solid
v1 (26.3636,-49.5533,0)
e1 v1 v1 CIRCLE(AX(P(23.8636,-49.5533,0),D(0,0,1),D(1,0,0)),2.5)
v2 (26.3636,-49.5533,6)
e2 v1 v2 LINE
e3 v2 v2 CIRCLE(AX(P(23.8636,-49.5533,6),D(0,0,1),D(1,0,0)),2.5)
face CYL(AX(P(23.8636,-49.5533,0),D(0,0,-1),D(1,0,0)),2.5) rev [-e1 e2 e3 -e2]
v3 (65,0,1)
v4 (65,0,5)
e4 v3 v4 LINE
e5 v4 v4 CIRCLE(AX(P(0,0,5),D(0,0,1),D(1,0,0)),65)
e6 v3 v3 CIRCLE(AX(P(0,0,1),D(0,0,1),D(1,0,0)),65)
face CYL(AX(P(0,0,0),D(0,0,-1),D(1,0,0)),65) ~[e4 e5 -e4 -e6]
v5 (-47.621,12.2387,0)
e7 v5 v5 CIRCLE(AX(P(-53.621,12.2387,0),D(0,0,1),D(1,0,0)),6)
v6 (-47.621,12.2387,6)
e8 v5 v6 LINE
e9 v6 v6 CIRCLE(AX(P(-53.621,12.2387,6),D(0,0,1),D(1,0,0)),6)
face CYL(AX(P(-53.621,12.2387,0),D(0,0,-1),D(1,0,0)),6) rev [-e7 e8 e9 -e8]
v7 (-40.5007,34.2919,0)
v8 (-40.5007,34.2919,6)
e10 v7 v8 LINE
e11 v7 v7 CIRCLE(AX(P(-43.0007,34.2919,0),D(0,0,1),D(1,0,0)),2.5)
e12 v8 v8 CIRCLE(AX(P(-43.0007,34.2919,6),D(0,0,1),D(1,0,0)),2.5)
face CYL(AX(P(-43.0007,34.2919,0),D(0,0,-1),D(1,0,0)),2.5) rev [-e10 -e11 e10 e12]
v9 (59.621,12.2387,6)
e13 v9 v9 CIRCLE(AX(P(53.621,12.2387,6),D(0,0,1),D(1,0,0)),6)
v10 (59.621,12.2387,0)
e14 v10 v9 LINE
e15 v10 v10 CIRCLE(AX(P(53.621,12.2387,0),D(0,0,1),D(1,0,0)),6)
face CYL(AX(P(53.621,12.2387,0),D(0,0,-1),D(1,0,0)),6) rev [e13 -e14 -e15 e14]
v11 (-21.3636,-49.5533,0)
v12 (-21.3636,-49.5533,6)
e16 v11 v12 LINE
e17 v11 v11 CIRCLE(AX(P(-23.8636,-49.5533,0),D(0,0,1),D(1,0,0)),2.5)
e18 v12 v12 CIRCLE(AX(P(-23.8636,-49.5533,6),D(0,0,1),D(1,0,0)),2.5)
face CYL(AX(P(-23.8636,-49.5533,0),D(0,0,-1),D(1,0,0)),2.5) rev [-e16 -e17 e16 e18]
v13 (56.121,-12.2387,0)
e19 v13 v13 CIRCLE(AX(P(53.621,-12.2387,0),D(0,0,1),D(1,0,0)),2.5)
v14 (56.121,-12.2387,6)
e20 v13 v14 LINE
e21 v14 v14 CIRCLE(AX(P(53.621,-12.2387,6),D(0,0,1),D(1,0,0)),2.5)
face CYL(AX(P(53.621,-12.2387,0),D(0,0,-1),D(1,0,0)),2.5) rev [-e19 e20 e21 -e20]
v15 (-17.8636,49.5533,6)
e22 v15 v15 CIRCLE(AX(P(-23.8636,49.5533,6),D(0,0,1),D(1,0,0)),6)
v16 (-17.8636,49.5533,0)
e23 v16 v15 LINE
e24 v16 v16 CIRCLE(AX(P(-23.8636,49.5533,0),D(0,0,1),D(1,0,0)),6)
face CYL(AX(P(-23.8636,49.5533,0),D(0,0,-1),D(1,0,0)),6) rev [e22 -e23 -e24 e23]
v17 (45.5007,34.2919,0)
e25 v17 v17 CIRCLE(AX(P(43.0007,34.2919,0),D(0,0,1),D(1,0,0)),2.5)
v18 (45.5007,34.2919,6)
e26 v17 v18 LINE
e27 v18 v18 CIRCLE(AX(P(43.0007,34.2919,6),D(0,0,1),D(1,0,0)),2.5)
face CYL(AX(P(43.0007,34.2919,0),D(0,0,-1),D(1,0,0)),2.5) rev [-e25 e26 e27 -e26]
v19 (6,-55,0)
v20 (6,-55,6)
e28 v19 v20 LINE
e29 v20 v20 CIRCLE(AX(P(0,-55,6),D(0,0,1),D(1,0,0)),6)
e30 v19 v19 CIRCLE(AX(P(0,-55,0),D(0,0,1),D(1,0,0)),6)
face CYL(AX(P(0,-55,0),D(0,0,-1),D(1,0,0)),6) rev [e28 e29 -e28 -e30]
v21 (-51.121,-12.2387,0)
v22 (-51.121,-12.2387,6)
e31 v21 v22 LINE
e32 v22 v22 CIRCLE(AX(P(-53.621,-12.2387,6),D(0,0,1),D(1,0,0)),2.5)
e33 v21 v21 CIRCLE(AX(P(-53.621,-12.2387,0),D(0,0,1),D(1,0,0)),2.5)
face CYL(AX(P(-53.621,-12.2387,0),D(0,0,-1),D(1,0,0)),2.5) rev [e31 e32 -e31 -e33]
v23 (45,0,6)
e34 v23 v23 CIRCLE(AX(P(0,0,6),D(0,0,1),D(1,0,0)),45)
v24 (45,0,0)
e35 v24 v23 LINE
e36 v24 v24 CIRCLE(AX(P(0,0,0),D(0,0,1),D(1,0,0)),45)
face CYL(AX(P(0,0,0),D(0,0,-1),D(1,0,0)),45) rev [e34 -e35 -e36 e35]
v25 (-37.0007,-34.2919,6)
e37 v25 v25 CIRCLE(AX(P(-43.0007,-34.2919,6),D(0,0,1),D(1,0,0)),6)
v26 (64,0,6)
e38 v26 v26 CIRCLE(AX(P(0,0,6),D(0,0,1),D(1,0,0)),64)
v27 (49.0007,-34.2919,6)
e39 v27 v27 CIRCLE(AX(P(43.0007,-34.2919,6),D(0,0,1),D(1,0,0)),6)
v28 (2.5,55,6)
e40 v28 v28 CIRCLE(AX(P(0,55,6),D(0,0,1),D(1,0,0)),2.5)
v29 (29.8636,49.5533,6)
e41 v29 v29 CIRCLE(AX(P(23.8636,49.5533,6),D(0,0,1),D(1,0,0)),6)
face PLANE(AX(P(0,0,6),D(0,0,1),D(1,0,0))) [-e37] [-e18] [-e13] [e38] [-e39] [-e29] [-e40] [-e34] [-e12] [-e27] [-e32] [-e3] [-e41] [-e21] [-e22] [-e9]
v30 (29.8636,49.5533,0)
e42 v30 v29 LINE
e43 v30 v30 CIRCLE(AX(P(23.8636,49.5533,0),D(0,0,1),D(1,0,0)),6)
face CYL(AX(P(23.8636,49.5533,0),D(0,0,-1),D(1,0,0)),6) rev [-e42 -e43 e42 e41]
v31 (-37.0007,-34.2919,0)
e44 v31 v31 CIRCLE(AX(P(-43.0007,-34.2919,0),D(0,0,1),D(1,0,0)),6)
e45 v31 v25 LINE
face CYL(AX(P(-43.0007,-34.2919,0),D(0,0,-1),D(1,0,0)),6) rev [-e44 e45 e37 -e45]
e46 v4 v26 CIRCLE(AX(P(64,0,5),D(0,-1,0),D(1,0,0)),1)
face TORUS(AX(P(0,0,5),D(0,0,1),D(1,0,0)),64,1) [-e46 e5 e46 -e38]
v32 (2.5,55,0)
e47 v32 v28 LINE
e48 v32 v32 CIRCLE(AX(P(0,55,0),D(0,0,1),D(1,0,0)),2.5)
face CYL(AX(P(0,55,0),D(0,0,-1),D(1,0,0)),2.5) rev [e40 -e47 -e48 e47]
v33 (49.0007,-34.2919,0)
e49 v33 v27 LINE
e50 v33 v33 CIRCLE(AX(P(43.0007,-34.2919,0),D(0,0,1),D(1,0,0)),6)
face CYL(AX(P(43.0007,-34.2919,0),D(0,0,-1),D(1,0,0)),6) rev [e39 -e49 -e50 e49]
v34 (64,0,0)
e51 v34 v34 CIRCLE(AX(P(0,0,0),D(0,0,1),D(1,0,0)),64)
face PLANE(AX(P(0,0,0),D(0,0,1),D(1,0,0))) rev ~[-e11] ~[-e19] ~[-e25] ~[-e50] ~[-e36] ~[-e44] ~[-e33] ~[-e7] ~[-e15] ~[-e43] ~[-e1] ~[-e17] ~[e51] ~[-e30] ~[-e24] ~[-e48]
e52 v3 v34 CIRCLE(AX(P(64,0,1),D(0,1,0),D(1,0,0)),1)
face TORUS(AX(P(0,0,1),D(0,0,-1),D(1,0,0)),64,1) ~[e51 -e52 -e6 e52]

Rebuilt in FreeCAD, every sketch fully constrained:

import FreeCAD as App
import Part
import Sketcher
Q = App.Units.Quantity


def edges_at(feature, points):
    """Names of the edges that pass closest to the given points."""
    edges = feature.Shape.Edges
    near = lambda p: min(range(len(edges)), key=lambda i: edges[i].distToShape(Part.Vertex(*p))[0])
    return sorted({f"Edge{near(p) + 1}" for p in points})

doc = App.newDocument("Part")
body = doc.addObject("PartDesign::Body", "Body")

# Sketch on XY plane
sketch1 = body.newObject("Sketcher::SketchObject", "Sketch")
sketch1.AttachmentSupport = (doc.getObject("XY_Plane"), [""])
sketch1.MapMode = "FlatFace"
sketch1.addGeometry([
    Part.Circle(App.Vector(0, 0, 0), App.Vector(0, 0, 1), 65),  # 0
    Part.Circle(App.Vector(-43, -34.3, 0), App.Vector(0, 0, 1), 6),  # 1
    Part.Circle(App.Vector(-23.9, -49.6, 0), App.Vector(0, 0, 1), 2.5),  # 2
    Part.Circle(App.Vector(-53.6, -12.2, 0), App.Vector(0, 0, 1), 2.5),  # 3
    Part.Circle(App.Vector(0, -55, 0), App.Vector(0, 0, 1), 6),  # 4
    Part.Circle(App.Vector(23.9, -49.6, 0), App.Vector(0, 0, 1), 2.5),  # 5
    Part.Circle(App.Vector(43, -34.3, 0), App.Vector(0, 0, 1), 6),  # 6
    Part.Circle(App.Vector(53.6, -12.2, 0), App.Vector(0, 0, 1), 2.5),  # 7
    Part.Circle(App.Vector(-53.6, 12.2, 0), App.Vector(0, 0, 1), 6),  # 8
    Part.Circle(App.Vector(-43, 34.3, 0), App.Vector(0, 0, 1), 2.5),  # 9
    Part.Circle(App.Vector(-23.9, 49.6, 0), App.Vector(0, 0, 1), 6),  # 10
    Part.Circle(App.Vector(0, 0, 0), App.Vector(0, 0, 1), 45),  # 11
    Part.Circle(App.Vector(53.6, 12.2, 0), App.Vector(0, 0, 1), 6),  # 12
    Part.Circle(App.Vector(0, 55, 0), App.Vector(0, 0, 1), 2.5),  # 13
    Part.Circle(App.Vector(23.9, 49.6, 0), App.Vector(0, 0, 1), 6),  # 14
    Part.Circle(App.Vector(43, 34.3, 0), App.Vector(0, 0, 1), 2.5),  # 15
], False)
sketch1.addConstraint([
    Sketcher.Constraint("Coincident", 0, 3, -1, 1),
    Sketcher.Constraint("Coincident", 11, 3, -1, 1),
    Sketcher.Constraint("Equal", 2, 3),
    Sketcher.Constraint("Equal", 1, 4),
    Sketcher.Constraint("Equal", 3, 5),
    Sketcher.Constraint("Equal", 4, 6),
    Sketcher.Constraint("Equal", 5, 7),
    Sketcher.Constraint("Equal", 6, 8),
    Sketcher.Constraint("Equal", 7, 9),
    Sketcher.Constraint("Equal", 8, 10),
    Sketcher.Constraint("Equal", 10, 12),
    Sketcher.Constraint("Equal", 9, 13),
    Sketcher.Constraint("Equal", 12, 14),
    Sketcher.Constraint("Equal", 13, 15),
    Sketcher.Constraint("Symmetric", 7, 3, 8, 3, -1, 1),
    Sketcher.Constraint("Symmetric", 6, 3, 9, 3, -1, 1),
    Sketcher.Constraint("Symmetric", 5, 3, 10, 3, -1, 1),
    Sketcher.Constraint("Symmetric", 3, 3, 12, 3, -1, 1),
    Sketcher.Constraint("Symmetric", 4, 3, 13, 3, -1, 1),
    Sketcher.Constraint("Symmetric", 2, 3, 14, 3, -1, 1),
    Sketcher.Constraint("Symmetric", 1, 3, 15, 3, -1, 1),
    Sketcher.Constraint("Symmetric", 2, 3, 5, 3, -2),
    Sketcher.Constraint("Symmetric", 1, 3, 6, 3, -2),
    Sketcher.Constraint("Symmetric", 3, 3, 7, 3, -2),
    Sketcher.Constraint("PointOnObject", 4, 3, -2),
    Sketcher.Constraint("Diameter", 0, Q("130 mm")),
    Sketcher.Constraint("Diameter", 1, Q("12 mm")),
    Sketcher.Constraint("Diameter", 2, Q("5 mm")),
    Sketcher.Constraint("Diameter", 11, Q("90 mm")),
    Sketcher.Constraint("DistanceY", 4, 3, -1, 1, Q("55 mm")),
    Sketcher.Constraint("DistanceY", 1, 3, -1, 1, Q("34.292 mm")),
    Sketcher.Constraint("DistanceX", 3, 3, -1, 1, Q("53.621 mm")),
    Sketcher.Constraint("DistanceX", 1, 3, 2, 3, Q("19.137 mm")),
    Sketcher.Constraint("DistanceY", 2, 3, 8, 3, Q("61.792 mm")),
    Sketcher.Constraint("DistanceX", 1, 3, -1, 1, Q("43.0007 mm")),
    Sketcher.Constraint("DistanceY", 2, 3, -1, 1, Q("49.5533 mm")),
])
pad1 = body.newObject("PartDesign::Pad", "Pad")
pad1.Profile = sketch1
pad1.Length = 6
doc.recompute()

fillet = body.newObject("PartDesign::Fillet", "Fillet")
fillet.Base = (pad1, edges_at(pad1, [(-65, 0, 6), (-65, 0, 0)]))
fillet.Radius = 1

doc.recompute()
